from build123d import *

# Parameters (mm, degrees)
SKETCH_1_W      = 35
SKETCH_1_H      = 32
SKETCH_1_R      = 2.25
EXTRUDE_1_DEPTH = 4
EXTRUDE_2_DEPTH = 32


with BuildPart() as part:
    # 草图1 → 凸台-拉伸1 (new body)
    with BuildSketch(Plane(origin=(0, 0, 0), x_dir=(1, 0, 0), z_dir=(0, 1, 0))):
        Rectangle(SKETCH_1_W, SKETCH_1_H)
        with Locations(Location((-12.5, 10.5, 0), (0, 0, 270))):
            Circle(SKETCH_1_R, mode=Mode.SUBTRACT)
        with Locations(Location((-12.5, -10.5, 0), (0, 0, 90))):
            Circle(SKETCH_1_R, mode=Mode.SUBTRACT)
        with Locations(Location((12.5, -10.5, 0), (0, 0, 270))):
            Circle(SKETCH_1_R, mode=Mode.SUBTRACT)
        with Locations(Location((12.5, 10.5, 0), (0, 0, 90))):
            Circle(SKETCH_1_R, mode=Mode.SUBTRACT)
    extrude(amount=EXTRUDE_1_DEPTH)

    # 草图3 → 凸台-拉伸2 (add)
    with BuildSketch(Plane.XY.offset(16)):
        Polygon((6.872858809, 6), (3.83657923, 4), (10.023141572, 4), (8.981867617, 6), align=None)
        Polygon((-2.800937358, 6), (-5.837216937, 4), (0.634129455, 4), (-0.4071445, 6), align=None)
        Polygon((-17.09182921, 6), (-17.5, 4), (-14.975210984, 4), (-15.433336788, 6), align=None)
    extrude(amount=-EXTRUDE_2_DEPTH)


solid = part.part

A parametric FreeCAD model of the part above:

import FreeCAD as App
import Part
import Sketcher
from FreeCAD import Vector

doc = App.newDocument("Part")
body = doc.addObject("PartDesign::Body", "Body")

# Sketch on XZ plane
sketch1 = body.newObject("Sketcher::SketchObject", "Sketch")
sketch1.AttachmentSupport = (doc.getObject("XZ_Plane"), [""])
sketch1.MapMode = "FlatFace"
sketch1.addGeometry([
    Part.LineSegment(Vector(-17.5, -16, 0), Vector(-17.5, 16, 0)),  # 0
    Part.LineSegment(Vector(-17.5, 16, 0), Vector(17.5, 16, 0)),  # 1
    Part.LineSegment(Vector(17.5, 16, 0), Vector(17.5, -16, 0)),  # 2
    Part.LineSegment(Vector(17.5, -16, 0), Vector(-17.5, -16, 0)),  # 3
    Part.Circle(Vector(-12.5, 10.5, 0), Vector(0, 0, 1), 2.25),  # 4
    Part.Circle(Vector(12.5, 10.5, 0), Vector(0, 0, 1), 2.25),  # 5
    Part.Circle(Vector(-12.5, -10.5, 0), Vector(0, 0, 1), 2.25),  # 6
    Part.Circle(Vector(12.5, -10.5, 0), Vector(0, 0, 1), 2.25),  # 7
], False)
sketch1.addConstraint([
    Sketcher.Constraint("Coincident", 0, 2, 1, 1),
    Sketcher.Constraint("Coincident", 1, 2, 2, 1),
    Sketcher.Constraint("Coincident", 2, 2, 3, 1),
    Sketcher.Constraint("Coincident", 3, 2, 0, 1),
    Sketcher.Constraint("Vertical", 0),
    Sketcher.Constraint("Horizontal", 1),
    Sketcher.Constraint("Vertical", 2),
    Sketcher.Constraint("Horizontal", 3),
    Sketcher.Constraint("Equal", 4, 5),
    Sketcher.Constraint("Equal", 5, 6),
    Sketcher.Constraint("Equal", 6, 7),
    Sketcher.Constraint("Symmetric", 5, 3, 6, 3, -1, 1),
    Sketcher.Constraint("Symmetric", 4, 3, 7, 3, -1, 1),
    Sketcher.Constraint("Symmetric", 0, 2, 2, 2, -1, 1),
    Sketcher.Constraint("Symmetric", 4, 3, 5, 3, -2),
    Sketcher.Constraint("Diameter", 4, 4.5),
    Sketcher.Constraint("DistanceX", 1, 1, 1, 2, 35.0),
    Sketcher.Constraint("DistanceY", 0, 1, 0, 2, 32.0),
    Sketcher.Constraint("DistanceX", 4, 3, 5, 3, 25.0),
    Sketcher.Constraint("DistanceY", 6, 3, 4, 3, 21.0),
])
pad1 = body.newObject("PartDesign::Pad", "Pad")
pad1.Profile = sketch1
pad1.Length = 4
pad1.Reversed = True

# Sketch on XY plane
sketch2 = body.newObject("Sketcher::SketchObject", "Sketch001")
sketch2.AttachmentSupport = (doc.getObject("XY_Plane"), [""])
sketch2.MapMode = "FlatFace"
sketch2.AttachmentOffset = App.Placement(Vector(0, 0, 16), App.Rotation())
sketch2.addGeometry([
    Part.LineSegment(Vector(6.872859, 6, 0), Vector(3.836579, 4, 0)),  # 0
    Part.LineSegment(Vector(3.836579, 4, 0), Vector(10.023142, 4, 0)),  # 1
    Part.LineSegment(Vector(10.023142, 4, 0), Vector(8.981868, 6, 0)),  # 2
    Part.LineSegment(Vector(8.981868, 6, 0), Vector(6.872859, 6, 0)),  # 3
    Part.LineSegment(Vector(-2.800937, 6, 0), Vector(-5.837217, 4, 0)),  # 4
    Part.LineSegment(Vector(-5.837217, 4, 0), Vector(0.634129, 4, 0)),  # 5
    Part.LineSegment(Vector(0.634129, 4, 0), Vector(-0.407145, 6, 0)),  # 6
    Part.LineSegment(Vector(-0.407145, 6, 0), Vector(-2.800937, 6, 0)),  # 7
    Part.LineSegment(Vector(-17.091829, 6, 0), Vector(-17.5, 4, 0)),  # 8
    Part.LineSegment(Vector(-17.5, 4, 0), Vector(-14.975211, 4, 0)),  # 9
    Part.LineSegment(Vector(-14.975211, 4, 0), Vector(-15.433337, 6, 0)),  # 10
    Part.LineSegment(Vector(-15.433337, 6, 0), Vector(-17.091829, 6, 0)),  # 11
], False)
sketch2.addConstraint([
    Sketcher.Constraint("Coincident", 0, 2, 1, 1),
    Sketcher.Constraint("Coincident", 1, 2, 2, 1),
    Sketcher.Constraint("Coincident", 2, 2, 3, 1),
    Sketcher.Constraint("Coincident", 3, 2, 0, 1),
    Sketcher.Constraint("Coincident", 4, 2, 5, 1),
    Sketcher.Constraint("Coincident", 5, 2, 6, 1),
    Sketcher.Constraint("Coincident", 6, 2, 7, 1),
    Sketcher.Constraint("Coincident", 7, 2, 4, 1),
    Sketcher.Constraint("Coincident", 8, 2, 9, 1),
    Sketcher.Constraint("Coincident", 9, 2, 10, 1),
    Sketcher.Constraint("Coincident", 10, 2, 11, 1),
    Sketcher.Constraint("Coincident", 11, 2, 8, 1),
    Sketcher.Constraint("Horizontal", 1),
    Sketcher.Constraint("Horizontal", 3),
    Sketcher.Constraint("Horizontal", 5),
    Sketcher.Constraint("Horizontal", 7),
    Sketcher.Constraint("Horizontal", 9),
    Sketcher.Constraint("Horizontal", 11),
    Sketcher.Constraint("Parallel", 0, 4),
    Sketcher.Constraint("Parallel", 2, 6),
    Sketcher.Constraint("Horizontal", 1, 2, 4, 2),
    Sketcher.Constraint("Horizontal", 3, 2, 6, 2),
    Sketcher.Constraint("Horizontal", 5, 2, 8, 2),
    Sketcher.Constraint("Horizontal", 7, 2, 10, 2),
    Sketcher.Constraint("DistanceY", -1, 1, 0, 2, 4.0),
    Sketcher.Constraint("DistanceY", -1, 1, 2, 2, 6.0),
    Sketcher.Constraint("DistanceX", 8, 2, -1, 1, 17.5),
    Sketcher.Constraint("Distance", 10, 2.051799),
    Sketcher.Constraint("DistanceX", 3, 2, 3, 1, 2.109009),
    Sketcher.Constraint("DistanceX", 9, 1, 9, 2, 2.524789),
    Sketcher.Constraint("DistanceX", 10, 2, 7, 2, 12.632399),
    Sketcher.Constraint("Distance", 2, 2.254828),
    Sketcher.Constraint("DistanceX", 1, 1, 1, 2, 6.186562),
    Sketcher.Constraint("DistanceX", 5, 1, 5, 2, 6.471346),
    Sketcher.Constraint("DistanceX", 11, 2, 11, 1, 1.658492),
    Sketcher.Constraint("DistanceX", -1, 1, 0, 2, 3.836579),
])
pad2 = body.newObject("PartDesign::Pad", "Pad001")
pad2.Profile = sketch2
pad2.Length = 32
pad2.Reversed = True

doc.recompute()
